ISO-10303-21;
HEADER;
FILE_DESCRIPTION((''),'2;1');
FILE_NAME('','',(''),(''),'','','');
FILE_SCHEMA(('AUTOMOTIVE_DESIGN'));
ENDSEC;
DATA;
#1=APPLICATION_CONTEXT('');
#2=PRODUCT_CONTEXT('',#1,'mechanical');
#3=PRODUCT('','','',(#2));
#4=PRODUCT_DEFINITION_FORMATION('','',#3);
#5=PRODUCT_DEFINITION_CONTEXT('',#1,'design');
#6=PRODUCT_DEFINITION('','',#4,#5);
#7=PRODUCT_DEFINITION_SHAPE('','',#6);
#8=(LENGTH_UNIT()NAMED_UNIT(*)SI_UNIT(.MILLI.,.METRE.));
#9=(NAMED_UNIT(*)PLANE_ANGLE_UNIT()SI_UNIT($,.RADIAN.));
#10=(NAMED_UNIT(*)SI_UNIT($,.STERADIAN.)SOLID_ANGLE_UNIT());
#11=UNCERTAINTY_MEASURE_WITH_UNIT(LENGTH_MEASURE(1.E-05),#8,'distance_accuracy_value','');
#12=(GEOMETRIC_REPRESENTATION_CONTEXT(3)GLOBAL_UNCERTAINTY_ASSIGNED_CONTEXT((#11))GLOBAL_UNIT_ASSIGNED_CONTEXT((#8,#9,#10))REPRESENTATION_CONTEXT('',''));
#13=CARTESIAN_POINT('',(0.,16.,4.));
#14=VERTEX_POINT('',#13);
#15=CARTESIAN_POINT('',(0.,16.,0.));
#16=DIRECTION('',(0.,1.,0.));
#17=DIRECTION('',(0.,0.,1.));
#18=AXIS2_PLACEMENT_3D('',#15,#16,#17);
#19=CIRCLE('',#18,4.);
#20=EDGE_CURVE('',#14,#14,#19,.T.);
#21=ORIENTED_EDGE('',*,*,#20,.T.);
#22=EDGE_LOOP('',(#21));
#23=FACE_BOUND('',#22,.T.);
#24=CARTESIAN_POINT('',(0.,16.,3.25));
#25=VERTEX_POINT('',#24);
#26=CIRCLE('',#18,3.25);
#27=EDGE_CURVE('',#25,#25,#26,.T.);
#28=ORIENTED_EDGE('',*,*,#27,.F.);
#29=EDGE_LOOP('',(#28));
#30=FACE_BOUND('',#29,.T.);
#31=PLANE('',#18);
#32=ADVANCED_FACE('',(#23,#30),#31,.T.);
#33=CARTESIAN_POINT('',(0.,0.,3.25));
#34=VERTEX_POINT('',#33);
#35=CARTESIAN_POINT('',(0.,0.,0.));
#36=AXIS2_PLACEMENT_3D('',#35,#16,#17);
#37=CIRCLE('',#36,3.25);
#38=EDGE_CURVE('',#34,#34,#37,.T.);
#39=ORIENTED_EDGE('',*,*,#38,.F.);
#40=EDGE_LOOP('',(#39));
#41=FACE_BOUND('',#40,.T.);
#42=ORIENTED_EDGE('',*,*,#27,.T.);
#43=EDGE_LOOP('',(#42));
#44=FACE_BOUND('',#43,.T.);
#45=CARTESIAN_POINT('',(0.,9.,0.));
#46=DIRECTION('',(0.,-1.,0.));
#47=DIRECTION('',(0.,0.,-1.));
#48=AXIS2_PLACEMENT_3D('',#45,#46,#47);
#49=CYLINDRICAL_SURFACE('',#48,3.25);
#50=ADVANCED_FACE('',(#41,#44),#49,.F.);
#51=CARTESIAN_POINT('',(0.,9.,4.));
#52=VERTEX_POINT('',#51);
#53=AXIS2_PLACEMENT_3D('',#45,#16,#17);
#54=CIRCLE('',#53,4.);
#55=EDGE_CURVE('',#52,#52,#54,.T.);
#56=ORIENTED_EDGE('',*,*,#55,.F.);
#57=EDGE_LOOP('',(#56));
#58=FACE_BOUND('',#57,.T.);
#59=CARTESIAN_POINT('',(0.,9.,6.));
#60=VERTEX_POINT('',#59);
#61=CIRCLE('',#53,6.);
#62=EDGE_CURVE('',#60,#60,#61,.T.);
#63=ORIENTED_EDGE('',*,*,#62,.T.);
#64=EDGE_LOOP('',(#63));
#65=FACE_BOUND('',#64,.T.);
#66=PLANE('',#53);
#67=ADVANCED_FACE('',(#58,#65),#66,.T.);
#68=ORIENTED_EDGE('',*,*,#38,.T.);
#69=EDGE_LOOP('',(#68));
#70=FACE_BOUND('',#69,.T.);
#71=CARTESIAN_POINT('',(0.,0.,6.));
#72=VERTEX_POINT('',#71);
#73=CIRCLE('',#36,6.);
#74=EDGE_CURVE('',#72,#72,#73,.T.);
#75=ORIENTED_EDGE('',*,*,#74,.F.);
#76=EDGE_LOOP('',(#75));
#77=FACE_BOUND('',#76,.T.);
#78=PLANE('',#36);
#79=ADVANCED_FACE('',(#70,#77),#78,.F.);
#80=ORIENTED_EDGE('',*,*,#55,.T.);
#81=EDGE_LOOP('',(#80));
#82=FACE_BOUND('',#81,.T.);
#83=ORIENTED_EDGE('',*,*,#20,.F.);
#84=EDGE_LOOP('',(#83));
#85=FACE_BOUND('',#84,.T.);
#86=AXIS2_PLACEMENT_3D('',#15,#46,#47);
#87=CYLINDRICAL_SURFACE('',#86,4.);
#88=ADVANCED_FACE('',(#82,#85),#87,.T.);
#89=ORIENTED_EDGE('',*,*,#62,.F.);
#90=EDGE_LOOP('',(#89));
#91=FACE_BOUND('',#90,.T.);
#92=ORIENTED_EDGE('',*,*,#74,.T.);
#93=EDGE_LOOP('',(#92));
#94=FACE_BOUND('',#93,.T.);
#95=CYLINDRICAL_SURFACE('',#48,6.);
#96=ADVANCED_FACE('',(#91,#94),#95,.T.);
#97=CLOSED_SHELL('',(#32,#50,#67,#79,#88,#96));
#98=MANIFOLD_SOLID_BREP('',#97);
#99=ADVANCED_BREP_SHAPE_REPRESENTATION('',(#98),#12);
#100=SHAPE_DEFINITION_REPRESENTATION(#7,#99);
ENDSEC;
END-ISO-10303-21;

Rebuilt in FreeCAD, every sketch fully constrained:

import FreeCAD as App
import Part
import Sketcher

V = App.Vector
Q = App.Units.Quantity

doc = App.newDocument("Part")
params = doc.addObject("Spreadsheet::Sheet", "Params")
for row, (alias, value) in enumerate([
    ("sketch1_diameter", "12 mm"),
    ("sketch1_diameter2", "6.5 mm"),
    ("pad1_length", "9 mm"),
    ("sketch2_diameter", "8 mm"),
    ("sketch2_diameter2", "6.5 mm"),
    ("pad2_length", "7 mm"),
], start=1):
    params.set(f"A{row}", alias)
    params.set(f"B{row}", "=" + value)
    params.setAlias(f"B{row}", alias)

body = doc.addObject("PartDesign::Body", "Body")

# Sketch on XZ plane
sketch1 = body.newObject("Sketcher::SketchObject", "Sketch")
sketch1.AttachmentSupport = (doc.getObject("XZ_Plane"), [""])
sketch1.MapMode = "FlatFace"
sketch1.addGeometry(Part.Circle(V(0, 0, 0), V(0, 0, 1), 6), False)
sketch1.addGeometry(Part.Circle(V(0, 0, 0), V(0, 0, 1), 3.2), False)
sketch1.addConstraint(Sketcher.Constraint("Coincident", 0, 3, -1, 1))
sketch1.addConstraint(Sketcher.Constraint("Coincident", 1, 3, -1, 1))
sketch1.addConstraint(Sketcher.Constraint("Diameter", 0, Q("12 mm")))
sketch1.addConstraint(Sketcher.Constraint("Diameter", 1, Q("6.5 mm")))
sketch1.setExpression("Constraints[2]", "Params.sketch1_diameter")
sketch1.setExpression("Constraints[3]", "Params.sketch1_diameter2")
pad1 = body.newObject("PartDesign::Pad", "Pad")
pad1.Profile = sketch1
pad1.setExpression("Length", "Params.pad1_length")
pad1.Reversed = True

# Sketch on XZ plane
sketch2 = body.newObject("Sketcher::SketchObject", "Sketch001")
sketch2.AttachmentSupport = (doc.getObject("XZ_Plane"), [""])
sketch2.MapMode = "FlatFace"
sketch2.AttachmentOffset = App.Placement(V(0, 0, -9), App.Rotation())
sketch2.addGeometry(Part.Circle(V(0, 0, 0), V(0, 0, 1), 4), False)
sketch2.addGeometry(Part.Circle(V(0, 0, 0), V(0, 0, 1), 3.2), False)
sketch2.addConstraint(Sketcher.Constraint("Coincident", 0, 3, -1, 1))
sketch2.addConstraint(Sketcher.Constraint("Coincident", 1, 3, -1, 1))
sketch2.addConstraint(Sketcher.Constraint("Diameter", 0, Q("8 mm")))
sketch2.addConstraint(Sketcher.Constraint("Diameter", 1, Q("6.5 mm")))
sketch2.setExpression("Constraints[2]", "Params.sketch2_diameter")
sketch2.setExpression("Constraints[3]", "Params.sketch2_diameter2")
pad2 = body.newObject("PartDesign::Pad", "Pad001")
pad2.Profile = sketch2
pad2.setExpression("Length", "Params.pad2_length")
pad2.Reversed = True

doc.recompute()
